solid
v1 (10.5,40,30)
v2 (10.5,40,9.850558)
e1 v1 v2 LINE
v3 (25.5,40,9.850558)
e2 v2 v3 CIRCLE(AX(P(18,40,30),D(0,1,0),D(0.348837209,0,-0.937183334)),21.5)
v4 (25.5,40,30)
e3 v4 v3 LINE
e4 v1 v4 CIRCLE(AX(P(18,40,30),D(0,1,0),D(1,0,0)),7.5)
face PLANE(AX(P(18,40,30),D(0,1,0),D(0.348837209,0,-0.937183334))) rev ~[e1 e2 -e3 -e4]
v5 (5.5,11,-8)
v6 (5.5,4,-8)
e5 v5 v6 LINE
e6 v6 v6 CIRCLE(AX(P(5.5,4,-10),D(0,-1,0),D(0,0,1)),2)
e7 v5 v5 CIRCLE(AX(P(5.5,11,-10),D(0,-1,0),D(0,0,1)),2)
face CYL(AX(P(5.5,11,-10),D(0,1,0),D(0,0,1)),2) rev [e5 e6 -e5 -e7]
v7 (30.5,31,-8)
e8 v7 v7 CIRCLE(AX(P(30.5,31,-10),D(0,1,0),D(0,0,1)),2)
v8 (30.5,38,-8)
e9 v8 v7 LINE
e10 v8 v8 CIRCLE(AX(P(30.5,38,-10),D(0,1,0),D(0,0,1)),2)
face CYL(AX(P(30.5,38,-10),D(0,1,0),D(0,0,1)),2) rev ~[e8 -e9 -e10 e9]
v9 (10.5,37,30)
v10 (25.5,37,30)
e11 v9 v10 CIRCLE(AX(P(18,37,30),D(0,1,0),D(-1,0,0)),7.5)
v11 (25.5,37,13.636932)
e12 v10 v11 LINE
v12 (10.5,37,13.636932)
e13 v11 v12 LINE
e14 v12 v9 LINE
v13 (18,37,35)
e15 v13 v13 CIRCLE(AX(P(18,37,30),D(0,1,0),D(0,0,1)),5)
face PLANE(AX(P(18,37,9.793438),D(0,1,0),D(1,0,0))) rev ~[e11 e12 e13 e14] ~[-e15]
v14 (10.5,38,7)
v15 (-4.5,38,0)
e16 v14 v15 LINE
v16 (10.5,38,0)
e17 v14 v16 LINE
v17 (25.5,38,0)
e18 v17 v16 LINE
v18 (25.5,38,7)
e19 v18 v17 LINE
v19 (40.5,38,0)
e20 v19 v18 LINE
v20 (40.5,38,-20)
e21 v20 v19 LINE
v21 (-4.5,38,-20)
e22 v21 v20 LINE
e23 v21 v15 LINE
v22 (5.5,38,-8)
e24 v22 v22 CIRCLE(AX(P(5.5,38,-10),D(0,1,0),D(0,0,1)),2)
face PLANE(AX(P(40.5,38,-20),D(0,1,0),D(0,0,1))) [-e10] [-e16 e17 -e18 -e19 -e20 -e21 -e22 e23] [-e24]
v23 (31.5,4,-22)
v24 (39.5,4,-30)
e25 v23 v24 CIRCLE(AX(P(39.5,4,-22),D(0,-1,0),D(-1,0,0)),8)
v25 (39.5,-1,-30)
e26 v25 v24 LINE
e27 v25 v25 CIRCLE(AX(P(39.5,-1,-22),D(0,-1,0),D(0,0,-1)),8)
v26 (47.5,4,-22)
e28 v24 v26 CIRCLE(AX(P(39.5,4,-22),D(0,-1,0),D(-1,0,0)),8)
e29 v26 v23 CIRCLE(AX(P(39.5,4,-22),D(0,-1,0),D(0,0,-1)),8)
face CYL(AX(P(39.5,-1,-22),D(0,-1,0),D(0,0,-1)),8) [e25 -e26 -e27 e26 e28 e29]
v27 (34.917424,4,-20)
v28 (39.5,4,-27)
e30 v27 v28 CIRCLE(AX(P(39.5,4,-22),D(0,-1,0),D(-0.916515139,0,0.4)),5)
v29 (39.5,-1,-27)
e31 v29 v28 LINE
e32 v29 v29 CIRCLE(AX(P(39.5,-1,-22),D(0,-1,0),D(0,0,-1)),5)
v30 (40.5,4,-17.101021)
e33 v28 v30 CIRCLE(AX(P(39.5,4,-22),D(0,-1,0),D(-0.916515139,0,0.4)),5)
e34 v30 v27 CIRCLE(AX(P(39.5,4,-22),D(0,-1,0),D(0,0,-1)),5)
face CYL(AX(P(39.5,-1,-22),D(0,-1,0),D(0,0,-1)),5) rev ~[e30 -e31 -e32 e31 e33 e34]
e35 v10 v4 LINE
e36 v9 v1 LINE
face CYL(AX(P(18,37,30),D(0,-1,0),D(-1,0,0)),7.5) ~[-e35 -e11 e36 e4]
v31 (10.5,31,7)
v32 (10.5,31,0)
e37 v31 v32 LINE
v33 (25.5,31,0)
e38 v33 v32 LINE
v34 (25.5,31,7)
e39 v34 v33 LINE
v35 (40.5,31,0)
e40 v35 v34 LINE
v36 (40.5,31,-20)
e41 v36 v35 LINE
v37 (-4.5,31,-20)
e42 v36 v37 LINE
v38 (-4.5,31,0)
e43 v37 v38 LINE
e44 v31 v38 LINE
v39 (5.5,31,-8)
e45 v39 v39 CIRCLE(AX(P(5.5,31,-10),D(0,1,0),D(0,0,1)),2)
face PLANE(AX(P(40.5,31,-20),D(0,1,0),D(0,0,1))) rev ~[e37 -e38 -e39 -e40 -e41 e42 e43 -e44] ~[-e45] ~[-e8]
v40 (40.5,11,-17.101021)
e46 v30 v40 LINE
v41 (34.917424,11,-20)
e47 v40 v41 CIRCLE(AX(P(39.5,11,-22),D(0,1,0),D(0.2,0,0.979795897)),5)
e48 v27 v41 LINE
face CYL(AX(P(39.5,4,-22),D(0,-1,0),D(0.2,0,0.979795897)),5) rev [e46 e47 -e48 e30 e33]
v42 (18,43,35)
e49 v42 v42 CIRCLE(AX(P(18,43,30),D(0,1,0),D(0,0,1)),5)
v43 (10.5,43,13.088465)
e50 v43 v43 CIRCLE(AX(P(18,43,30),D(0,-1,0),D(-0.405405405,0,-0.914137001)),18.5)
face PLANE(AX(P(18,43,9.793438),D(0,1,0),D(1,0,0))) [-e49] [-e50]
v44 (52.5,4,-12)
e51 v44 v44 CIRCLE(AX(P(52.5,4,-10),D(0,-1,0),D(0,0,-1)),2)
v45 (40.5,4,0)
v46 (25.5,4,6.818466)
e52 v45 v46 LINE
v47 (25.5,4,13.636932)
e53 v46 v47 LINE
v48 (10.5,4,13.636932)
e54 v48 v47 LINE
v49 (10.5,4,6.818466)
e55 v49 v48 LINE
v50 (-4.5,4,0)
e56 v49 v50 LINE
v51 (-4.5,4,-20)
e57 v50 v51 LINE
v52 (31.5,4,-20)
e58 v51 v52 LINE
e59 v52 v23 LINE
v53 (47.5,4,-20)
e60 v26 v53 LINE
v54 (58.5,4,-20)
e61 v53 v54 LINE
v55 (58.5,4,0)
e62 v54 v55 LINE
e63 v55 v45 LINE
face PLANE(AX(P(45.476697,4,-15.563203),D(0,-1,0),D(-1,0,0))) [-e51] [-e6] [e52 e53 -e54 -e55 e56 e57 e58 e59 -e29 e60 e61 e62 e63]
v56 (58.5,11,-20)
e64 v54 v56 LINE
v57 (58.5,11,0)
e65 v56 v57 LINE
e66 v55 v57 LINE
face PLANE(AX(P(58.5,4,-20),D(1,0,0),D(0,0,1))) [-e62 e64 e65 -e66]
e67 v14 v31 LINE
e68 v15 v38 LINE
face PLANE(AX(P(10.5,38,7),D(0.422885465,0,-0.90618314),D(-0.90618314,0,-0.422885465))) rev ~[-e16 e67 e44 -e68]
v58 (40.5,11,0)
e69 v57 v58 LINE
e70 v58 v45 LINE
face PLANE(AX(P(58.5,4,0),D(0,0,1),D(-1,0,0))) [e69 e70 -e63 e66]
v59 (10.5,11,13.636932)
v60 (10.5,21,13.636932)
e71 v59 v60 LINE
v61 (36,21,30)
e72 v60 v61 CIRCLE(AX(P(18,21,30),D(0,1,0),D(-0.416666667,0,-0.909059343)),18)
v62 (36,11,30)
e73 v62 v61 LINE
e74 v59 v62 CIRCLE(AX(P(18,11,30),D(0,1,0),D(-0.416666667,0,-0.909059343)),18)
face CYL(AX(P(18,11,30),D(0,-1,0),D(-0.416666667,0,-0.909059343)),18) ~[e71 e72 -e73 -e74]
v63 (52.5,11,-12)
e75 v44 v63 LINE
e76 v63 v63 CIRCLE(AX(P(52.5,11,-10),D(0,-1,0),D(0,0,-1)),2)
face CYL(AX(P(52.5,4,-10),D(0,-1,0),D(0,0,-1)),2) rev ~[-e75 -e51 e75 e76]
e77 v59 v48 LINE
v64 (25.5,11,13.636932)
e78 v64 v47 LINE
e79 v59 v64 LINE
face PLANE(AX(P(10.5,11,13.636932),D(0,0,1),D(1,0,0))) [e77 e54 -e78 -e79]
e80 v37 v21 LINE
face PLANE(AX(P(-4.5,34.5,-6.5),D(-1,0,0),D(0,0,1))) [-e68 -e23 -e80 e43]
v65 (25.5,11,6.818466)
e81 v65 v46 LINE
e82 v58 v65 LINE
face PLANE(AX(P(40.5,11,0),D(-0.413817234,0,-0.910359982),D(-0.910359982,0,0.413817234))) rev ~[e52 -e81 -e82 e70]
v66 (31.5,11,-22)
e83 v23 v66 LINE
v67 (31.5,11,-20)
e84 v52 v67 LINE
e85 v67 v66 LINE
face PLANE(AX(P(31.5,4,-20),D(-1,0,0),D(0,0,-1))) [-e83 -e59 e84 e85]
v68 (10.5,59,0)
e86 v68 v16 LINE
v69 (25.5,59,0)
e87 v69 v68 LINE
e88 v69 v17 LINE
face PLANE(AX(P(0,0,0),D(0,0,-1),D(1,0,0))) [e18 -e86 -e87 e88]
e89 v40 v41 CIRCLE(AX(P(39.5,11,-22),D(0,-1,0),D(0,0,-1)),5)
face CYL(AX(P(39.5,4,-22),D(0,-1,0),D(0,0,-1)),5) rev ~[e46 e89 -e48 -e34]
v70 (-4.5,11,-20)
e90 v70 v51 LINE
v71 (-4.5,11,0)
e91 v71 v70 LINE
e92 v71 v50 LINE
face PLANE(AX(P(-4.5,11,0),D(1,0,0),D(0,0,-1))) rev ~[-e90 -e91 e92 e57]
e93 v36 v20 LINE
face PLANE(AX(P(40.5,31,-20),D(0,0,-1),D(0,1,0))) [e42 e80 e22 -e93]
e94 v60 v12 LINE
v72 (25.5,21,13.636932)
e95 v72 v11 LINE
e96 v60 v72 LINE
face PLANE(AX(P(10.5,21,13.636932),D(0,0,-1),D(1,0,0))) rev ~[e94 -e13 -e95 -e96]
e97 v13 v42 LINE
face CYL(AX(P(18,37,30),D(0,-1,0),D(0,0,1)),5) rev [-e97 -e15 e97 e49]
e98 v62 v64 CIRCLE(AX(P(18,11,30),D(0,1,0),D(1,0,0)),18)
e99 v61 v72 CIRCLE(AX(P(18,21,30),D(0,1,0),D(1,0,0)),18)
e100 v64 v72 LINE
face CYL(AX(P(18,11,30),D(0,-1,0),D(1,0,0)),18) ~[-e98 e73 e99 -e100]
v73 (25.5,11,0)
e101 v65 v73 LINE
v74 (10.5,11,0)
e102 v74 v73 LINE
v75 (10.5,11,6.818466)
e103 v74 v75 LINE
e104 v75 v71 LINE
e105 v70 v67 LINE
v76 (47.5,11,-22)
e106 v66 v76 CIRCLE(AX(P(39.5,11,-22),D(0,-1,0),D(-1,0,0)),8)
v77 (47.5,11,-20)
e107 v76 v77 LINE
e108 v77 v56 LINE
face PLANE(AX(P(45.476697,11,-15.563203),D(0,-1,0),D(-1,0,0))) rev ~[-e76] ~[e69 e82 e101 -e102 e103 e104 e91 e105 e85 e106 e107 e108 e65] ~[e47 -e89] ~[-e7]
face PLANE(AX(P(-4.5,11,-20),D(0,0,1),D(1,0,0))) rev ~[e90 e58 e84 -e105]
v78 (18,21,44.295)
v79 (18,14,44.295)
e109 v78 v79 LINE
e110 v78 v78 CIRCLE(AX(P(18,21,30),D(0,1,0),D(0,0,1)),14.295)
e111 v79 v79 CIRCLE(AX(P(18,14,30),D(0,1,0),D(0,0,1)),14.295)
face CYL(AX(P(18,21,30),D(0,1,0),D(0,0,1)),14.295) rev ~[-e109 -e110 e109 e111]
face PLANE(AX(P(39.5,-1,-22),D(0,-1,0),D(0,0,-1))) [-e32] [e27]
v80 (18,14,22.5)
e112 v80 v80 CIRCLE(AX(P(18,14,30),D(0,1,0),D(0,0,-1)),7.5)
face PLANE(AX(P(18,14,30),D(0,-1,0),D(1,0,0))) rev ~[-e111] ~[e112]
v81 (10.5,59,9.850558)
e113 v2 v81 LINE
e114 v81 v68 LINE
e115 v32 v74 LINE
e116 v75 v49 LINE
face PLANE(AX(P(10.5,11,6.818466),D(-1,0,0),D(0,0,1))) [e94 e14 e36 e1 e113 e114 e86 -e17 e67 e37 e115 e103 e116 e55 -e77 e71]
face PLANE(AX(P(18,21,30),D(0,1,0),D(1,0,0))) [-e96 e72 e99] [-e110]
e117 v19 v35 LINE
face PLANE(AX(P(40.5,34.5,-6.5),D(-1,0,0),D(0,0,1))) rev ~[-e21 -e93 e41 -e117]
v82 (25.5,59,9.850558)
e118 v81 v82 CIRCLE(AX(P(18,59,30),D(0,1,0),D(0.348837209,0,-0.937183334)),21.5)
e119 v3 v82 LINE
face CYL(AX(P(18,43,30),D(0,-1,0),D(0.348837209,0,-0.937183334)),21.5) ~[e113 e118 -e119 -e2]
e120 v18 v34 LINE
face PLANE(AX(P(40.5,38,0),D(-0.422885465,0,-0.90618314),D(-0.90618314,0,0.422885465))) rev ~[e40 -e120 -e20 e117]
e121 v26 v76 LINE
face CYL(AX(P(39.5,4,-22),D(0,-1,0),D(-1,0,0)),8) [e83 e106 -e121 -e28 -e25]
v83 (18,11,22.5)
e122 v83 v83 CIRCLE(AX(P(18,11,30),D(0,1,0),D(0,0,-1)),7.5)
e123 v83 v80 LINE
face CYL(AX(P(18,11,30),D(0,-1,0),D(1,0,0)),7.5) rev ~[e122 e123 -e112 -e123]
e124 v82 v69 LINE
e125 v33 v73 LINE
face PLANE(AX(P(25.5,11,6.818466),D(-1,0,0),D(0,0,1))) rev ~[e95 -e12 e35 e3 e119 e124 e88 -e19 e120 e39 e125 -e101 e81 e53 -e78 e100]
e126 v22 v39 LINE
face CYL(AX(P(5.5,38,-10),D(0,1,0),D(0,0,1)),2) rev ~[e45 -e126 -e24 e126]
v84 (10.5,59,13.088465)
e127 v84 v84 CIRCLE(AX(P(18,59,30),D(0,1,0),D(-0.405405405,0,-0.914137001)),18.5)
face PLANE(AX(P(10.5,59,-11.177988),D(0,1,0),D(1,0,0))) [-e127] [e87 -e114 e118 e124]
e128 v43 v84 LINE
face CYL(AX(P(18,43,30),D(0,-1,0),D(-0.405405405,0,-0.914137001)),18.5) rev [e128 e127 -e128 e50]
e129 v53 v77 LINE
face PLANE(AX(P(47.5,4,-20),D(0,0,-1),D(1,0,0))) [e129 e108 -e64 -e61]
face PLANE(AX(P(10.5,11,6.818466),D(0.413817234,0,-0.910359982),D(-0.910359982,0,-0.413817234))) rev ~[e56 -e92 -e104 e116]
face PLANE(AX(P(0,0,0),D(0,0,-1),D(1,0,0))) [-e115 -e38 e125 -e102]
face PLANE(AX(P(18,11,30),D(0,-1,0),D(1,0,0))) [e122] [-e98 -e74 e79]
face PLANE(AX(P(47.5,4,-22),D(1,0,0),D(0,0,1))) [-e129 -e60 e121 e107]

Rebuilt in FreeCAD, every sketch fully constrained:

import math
import FreeCAD as App
import Part
import Sketcher
from FreeCAD import Vector
Q = App.Units.Quantity


def add_polygon(sketch, points):
    """Adds a closed chain of lines whose ends are joined by coincident constraints."""
    first, n = sketch.GeometryCount, len(points)
    for a, b in zip(points, points[1:] + points[:1]):
        sketch.addGeometry(Part.LineSegment(App.Vector(*a, 0), App.Vector(*b, 0)), False)
    for i in range(n):
        sketch.addConstraint(Sketcher.Constraint("Coincident", first + i, 2, first + (i + 1) % n, 1))

doc = App.newDocument("Part")
params = doc.addObject("Spreadsheet::Sheet", "Params")
for row, (alias, value) in enumerate([
    ("sketch1_width", "36 mm"),
    ("sketch1_height", "20 mm"),
    ("pad1_length", "5 mm"),
    ("sketch2_width", "15 mm"),
    ("pad2_length", "32 mm"),
    ("sketch3_diameter", "10 mm"),
    ("sketch3_radius", "7.5 mm"),
    ("pad3_length", "6 mm"),
    ("sketch4_diameter", "43 mm"),
    ("sketch4_diameter2", "37 mm"),
    ("pad4_length", "16 mm"),
    ("sketch5_diameter", "43 mm"),
    ("sketch5_diameter2", "15 mm"),
    ("pad5_length", "3 mm"),
    ("sketch6_width", "15 mm"),
    ("pad6_length", "16 mm"),
    ("sketch7_diameter", "4 mm"),
    ("pocket1_length", "16 mm"),
    ("sketch8_width", "15 mm"),
    ("sketch8_height", "10 mm"),
    ("pad7_length", "30 mm"),
    ("sketch9_diameter", "43 mm"),
    ("sketch9_diameter2", "30 mm"),
    ("pad8_length", "10 mm"),
    ("sketch10_diameter", "30 mm"),
    ("sketch10_diameter2", "15 mm"),
    ("pad9_length", "3 mm"),
    ("sketch11_diameter", "30 mm"),
    ("pocket2_length", "7 mm"),
    ("sketch12_diameter", "15 mm"),
    ("pocket3_length", "7 mm"),
    ("sketch13_diameter", "30 mm"),
    ("sketch13_diameter2", "28.59 mm"),
    ("pad10_length", "7 mm"),
    ("sketch14_radius", "18 mm"),
    ("sketch14_radius2", "21.5 mm"),
    ("pocket4_length", "10 mm"),
    ("sketch15_width", "15 mm"),
    ("sketch15_height", "16 mm"),
    ("pad11_length", "22 mm"),
    ("sketch16_width", "15 mm"),
    ("pad12_length", "22 mm"),
    ("sketch17_width", "36 mm"),
    ("sketch17_height", "20 mm"),
    ("sketch18_width", "15 mm"),
    ("sketch18_height", "7 mm"),
    ("pad13_length", "20 mm"),
    ("sketch19_width", "7 mm"),
    ("sketch19_height", "27 mm"),
    ("pad14_length", "15 mm"),
    ("pad14_length2", "30 mm"),
    ("sketch20_diameter", "4 mm"),
    ("sketch20_width", "15 mm"),
    ("sketch20_height", "7 mm"),
    ("sketch21_diameter", "4 mm"),
    ("sketch21_width", "45 mm"),
    ("sketch21_width2", "15 mm"),
    ("sketch21_height", "20 mm"),
    ("pad15_length", "7 mm"),
    ("sketch22_diameter", "4 mm"),
    ("sketch22_radius", "8 mm"),
    ("sketch22_radius2", "5 mm"),
    ("sketch22_width", "11 mm"),
    ("sketch22_width2", "18 mm"),
    ("pad16_length", "7 mm"),
    ("sketch23_diameter", "10 mm"),
    ("pocket7_length", "7 mm"),
    ("sketch24_diameter", "16 mm"),
    ("sketch24_diameter2", "10 mm"),
    ("pad17_length", "5 mm"),
], start=1):
    params.set(f"A{row}", alias)
    params.set(f"B{row}", "=" + value)
    params.setAlias(f"B{row}", alias)

body = doc.addObject("PartDesign::Body", "Body")

sketch1 = body.newObject("Sketcher::SketchObject", "Sketch")
sketch1.AttachmentSupport = (doc.getObject("XZ_Plane"), [""])
sketch1.MapMode = "FlatFace"
add_polygon(sketch1, [(0, -20), (0, 0), (36, 0), (36, -20)])
sketch1.addConstraint(Sketcher.Constraint("Vertical", 0))
sketch1.addConstraint(Sketcher.Constraint("Horizontal", 1))
sketch1.addConstraint(Sketcher.Constraint("Vertical", 2))
sketch1.addConstraint(Sketcher.Constraint("Horizontal", 3))
sketch1.addConstraint(Sketcher.Constraint("Coincident", 0, 2, -1, 1))
sketch1.addConstraint(Sketcher.Constraint("DistanceX", 1, 1, 1, 2, Q("36 mm")))
sketch1.addConstraint(Sketcher.Constraint("DistanceY", 0, 1, 0, 2, Q("20 mm")))
sketch1.setExpression("Constraints[9]", "Params.sketch1_width")
sketch1.setExpression("Constraints[10]", "Params.sketch1_height")
pad1 = body.newObject("PartDesign::Pad", "Pad")
pad1.Profile = sketch1
pad1.setExpression("Length", "Params.pad1_length")
pad1.Reversed = True

sketch2 = body.newObject("Sketcher::SketchObject", "Sketch001")
sketch2.AttachmentSupport = (doc.getObject("XZ_Plane"), [""])
sketch2.MapMode = "FlatFace"
sketch2.AttachmentOffset = App.Placement(Vector(0, 0, -5), App.Rotation())
add_polygon(sketch2, [(10.5, 0), (25.5, 0), (25.5, -14.591208), (10.5, -14.591208)])
sketch2.addConstraint(Sketcher.Constraint("Horizontal", 0))
sketch2.addConstraint(Sketcher.Constraint("Vertical", 1))
sketch2.addConstraint(Sketcher.Constraint("Horizontal", 2))
sketch2.addConstraint(Sketcher.Constraint("Vertical", 3))
sketch2.addConstraint(Sketcher.Constraint("PointOnObject", 0, 2, -1))
sketch2.addConstraint(Sketcher.Constraint("DistanceX", 0, 1, 0, 2, Q("15 mm")))
sketch2.addConstraint(Sketcher.Constraint("DistanceX", -1, 1, 0, 2, Q("25.5 mm")))
sketch2.addConstraint(Sketcher.Constraint("DistanceY", 1, 2, 1, 1, Q("14.591208 mm")))
sketch2.setExpression("Constraints[9]", "Params.sketch2_width")
pad2 = body.newObject("PartDesign::Pad", "Pad001")
pad2.Profile = sketch2
pad2.setExpression("Length", "Params.pad2_length")
pad2.Reversed = True

sketch3 = body.newObject("Sketcher::SketchObject", "Sketch002")
sketch3.AttachmentSupport = (doc.getObject("XZ_Plane"), [""])
sketch3.MapMode = "FlatFace"
sketch3.AttachmentOffset = App.Placement(Vector(0, 0, -37), App.Rotation())
sketch3.addGeometry(Part.LineSegment(Vector(10.5, -14.591208, 0), Vector(10.5, 30, 0)), False)
sketch3.addGeometry(Part.ArcOfCircle(Part.Circle(Vector(18, 30, 0), Vector(0, 0, 1), 7.5), math.radians(0), math.radians(180)), False)
sketch3.addGeometry(Part.LineSegment(Vector(25.5, 30, 0), Vector(25.5, -14.591208, 0)), False)
sketch3.addGeometry(Part.LineSegment(Vector(25.5, -14.591208, 0), Vector(10.5, -14.591208, 0)), False)
sketch3.addGeometry(Part.Circle(Vector(18, 30, 0), Vector(0, 0, 1), 5), False)
sketch3.addConstraint(Sketcher.Constraint("Tangent", 0, 2, 1, 2))
sketch3.addConstraint(Sketcher.Constraint("Tangent", 1, 1, 2, 1))
sketch3.addConstraint(Sketcher.Constraint("Coincident", 2, 2, 3, 1))
sketch3.addConstraint(Sketcher.Constraint("Coincident", 3, 2, 0, 1))
sketch3.addConstraint(Sketcher.Constraint("Vertical", 0))
sketch3.addConstraint(Sketcher.Constraint("Vertical", 2))
sketch3.addConstraint(Sketcher.Constraint("Horizontal", 3))
sketch3.addConstraint(Sketcher.Constraint("Coincident", 4, 3, 1, 3))
sketch3.addConstraint(Sketcher.Constraint("Diameter", 4, Q("10 mm")))
sketch3.addConstraint(Sketcher.Constraint("Radius", 1, Q("7.5 mm")))
sketch3.addConstraint(Sketcher.Constraint("DistanceX", -1, 1, 1, 3, Q("18 mm")))
sketch3.addConstraint(Sketcher.Constraint("DistanceY", -1, 1, 1, 3, Q("30 mm")))
sketch3.addConstraint(Sketcher.Constraint("DistanceY", 0, 1, 0, 2, Q("44.591208 mm")))
sketch3.setExpression("Constraints[8]", "Params.sketch3_diameter")
sketch3.setExpression("Constraints[9]", "Params.sketch3_radius")
pad3 = body.newObject("PartDesign::Pad", "Pad002")
pad3.Profile = sketch3
pad3.setExpression("Length", "Params.pad3_length")
pad3.Reversed = True

sketch4 = body.newObject("Sketcher::SketchObject", "Sketch003")
sketch4.AttachmentSupport = (doc.getObject("XZ_Plane"), [""])
sketch4.MapMode = "FlatFace"
sketch4.AttachmentOffset = App.Placement(Vector(0, 0, -43), App.Rotation())
sketch4.addGeometry(Part.Circle(Vector(18, 30, 0), Vector(0, 0, 1), 21.5), False)
sketch4.addGeometry(Part.Circle(Vector(18, 30, 0), Vector(0, 0, 1), 18.5), False)
sketch4.addConstraint(Sketcher.Constraint("Coincident", 1, 3, 0, 3))
sketch4.addConstraint(Sketcher.Constraint("Diameter", 0, Q("43 mm")))
sketch4.addConstraint(Sketcher.Constraint("Diameter", 1, Q("37 mm")))
sketch4.addConstraint(Sketcher.Constraint("DistanceX", -1, 1, 0, 3, Q("18 mm")))
sketch4.addConstraint(Sketcher.Constraint("DistanceY", -1, 1, 0, 3, Q("30 mm")))
sketch4.setExpression("Constraints[1]", "Params.sketch4_diameter")
sketch4.setExpression("Constraints[2]", "Params.sketch4_diameter2")
pad4 = body.newObject("PartDesign::Pad", "Pad003")
pad4.Profile = sketch4
pad4.setExpression("Length", "Params.pad4_length")
pad4.Reversed = True

sketch5 = body.newObject("Sketcher::SketchObject", "Sketch004")
sketch5.AttachmentSupport = (doc.getObject("XZ_Plane"), [""])
sketch5.MapMode = "FlatFace"
sketch5.AttachmentOffset = App.Placement(Vector(0, 0, -40), App.Rotation())
sketch5.addGeometry(Part.Circle(Vector(18, 30, 0), Vector(0, 0, 1), 21.5), False)
sketch5.addGeometry(Part.Circle(Vector(18, 30, 0), Vector(0, 0, 1), 7.5), False)
sketch5.addConstraint(Sketcher.Constraint("Coincident", 1, 3, 0, 3))
sketch5.addConstraint(Sketcher.Constraint("Diameter", 0, Q("43 mm")))
sketch5.addConstraint(Sketcher.Constraint("Diameter", 1, Q("15 mm")))
sketch5.addConstraint(Sketcher.Constraint("DistanceX", -1, 1, 0, 3, Q("18 mm")))
sketch5.addConstraint(Sketcher.Constraint("DistanceY", -1, 1, 0, 3, Q("30 mm")))
sketch5.setExpression("Constraints[1]", "Params.sketch5_diameter")
sketch5.setExpression("Constraints[2]", "Params.sketch5_diameter2")
pad5 = body.newObject("PartDesign::Pad", "Pad004")
pad5.Profile = sketch5
pad5.setExpression("Length", "Params.pad5_length")
pad5.Reversed = True

sketch6 = body.newObject("Sketcher::SketchObject", "Sketch005")
sketch6.AttachmentSupport = (doc.getObject("XZ_Plane"), [""])
sketch6.MapMode = "FlatFace"
sketch6.AttachmentOffset = App.Placement(Vector(0, 0, -43), App.Rotation())
add_polygon(sketch6, [(10.5, -14.591208), (10.5, -11.177988), (25.5, -11.177988), (25.5, -14.591208)])
sketch6.addConstraint(Sketcher.Constraint("Vertical", 0))
sketch6.addConstraint(Sketcher.Constraint("Horizontal", 1))
sketch6.addConstraint(Sketcher.Constraint("Vertical", 2))
sketch6.addConstraint(Sketcher.Constraint("Horizontal", 3))
sketch6.addConstraint(Sketcher.Constraint("DistanceX", 1, 1, 1, 2, Q("15 mm")))
sketch6.addConstraint(Sketcher.Constraint("DistanceX", -1, 1, 0, 2, Q("10.5 mm")))
sketch6.addConstraint(Sketcher.Constraint("DistanceY", 0, 1, 0, 2, Q("3.413221 mm")))
sketch6.addConstraint(Sketcher.Constraint("DistanceY", 2, 2, -1, 1, Q("14.591208 mm")))
sketch6.setExpression("Constraints[8]", "Params.sketch6_width")
pad6 = body.newObject("PartDesign::Pad", "Pad005")
pad6.Profile = sketch6
pad6.setExpression("Length", "Params.pad6_length")
pad6.Reversed = True

sketch7 = body.newObject("Sketcher::SketchObject", "Sketch006")
sketch7.AttachmentSupport = (doc.getObject("XZ_Plane"), [""])
sketch7.MapMode = "FlatFace"
sketch7.addGeometry(Part.Circle(Vector(6, -10, 0), Vector(0, 0, 1), 2), False)
sketch7.addGeometry(Part.Circle(Vector(30, -10, 0), Vector(0, 0, 1), 2), False)
sketch7.addConstraint(Sketcher.Constraint("Equal", 0, 1))
sketch7.addConstraint(Sketcher.Constraint("Horizontal", 0, 3, 1, 3))
sketch7.addConstraint(Sketcher.Constraint("Diameter", 0, Q("4 mm")))
sketch7.addConstraint(Sketcher.Constraint("DistanceX", -1, 1, 0, 3, Q("6 mm")))
sketch7.addConstraint(Sketcher.Constraint("DistanceY", 0, 3, -1, 1, Q("10 mm")))
sketch7.addConstraint(Sketcher.Constraint("DistanceX", -1, 1, 1, 3, Q("30 mm")))
sketch7.setExpression("Constraints[2]", "Params.sketch7_diameter")
pocket1 = body.newObject("PartDesign::Pocket", "Pocket")
pocket1.Profile = sketch7
pocket1.setExpression("Length", "Params.pocket1_length")

sketch8 = body.newObject("Sketcher::SketchObject", "Sketch007")
sketch8.AttachmentSupport = (doc.getObject("XY_Plane"), [""])
sketch8.MapMode = "FlatFace"
add_polygon(sketch8, [(10.5, 21), (10.5, 11), (25.5, 11), (25.5, 21)])
sketch8.addConstraint(Sketcher.Constraint("Vertical", 0))
sketch8.addConstraint(Sketcher.Constraint("Horizontal", 1))
sketch8.addConstraint(Sketcher.Constraint("Vertical", 2))
sketch8.addConstraint(Sketcher.Constraint("Horizontal", 3))
sketch8.addConstraint(Sketcher.Constraint("DistanceX", 1, 1, 1, 2, Q("15 mm")))
sketch8.addConstraint(Sketcher.Constraint("DistanceY", 0, 2, 0, 1, Q("10 mm")))
sketch8.addConstraint(Sketcher.Constraint("DistanceY", -1, 1, 0, 2, Q("11 mm")))
sketch8.addConstraint(Sketcher.Constraint("DistanceX", -1, 1, 0, 2, Q("10.5 mm")))
sketch8.setExpression("Constraints[8]", "Params.sketch8_width")
sketch8.setExpression("Constraints[9]", "Params.sketch8_height")
pad7 = body.newObject("PartDesign::Pad", "Pad006")
pad7.Profile = sketch8
pad7.setExpression("Length", "Params.pad7_length")

sketch9 = body.newObject("Sketcher::SketchObject", "Sketch008")
sketch9.AttachmentSupport = (doc.getObject("XZ_Plane"), [""])
sketch9.MapMode = "FlatFace"
sketch9.AttachmentOffset = App.Placement(Vector(0, 0, -21), App.Rotation())
sketch9.addGeometry(Part.Circle(Vector(18, 30, 0), Vector(0, 0, 1), 21.5), False)
sketch9.addGeometry(Part.Circle(Vector(18, 30, 0), Vector(0, 0, 1), 15), False)
sketch9.addConstraint(Sketcher.Constraint("Coincident", 1, 3, 0, 3))
sketch9.addConstraint(Sketcher.Constraint("Diameter", 0, Q("43 mm")))
sketch9.addConstraint(Sketcher.Constraint("Diameter", 1, Q("30 mm")))
sketch9.addConstraint(Sketcher.Constraint("DistanceX", -1, 1, 0, 3, Q("18 mm")))
sketch9.addConstraint(Sketcher.Constraint("DistanceY", -1, 1, 0, 3, Q("30 mm")))
sketch9.setExpression("Constraints[1]", "Params.sketch9_diameter")
sketch9.setExpression("Constraints[2]", "Params.sketch9_diameter2")
pad8 = body.newObject("PartDesign::Pad", "Pad007")
pad8.Profile = sketch9
pad8.setExpression("Length", "Params.pad8_length")

sketch10 = body.newObject("Sketcher::SketchObject", "Sketch009")
sketch10.AttachmentSupport = (doc.getObject("XZ_Plane"), [""])
sketch10.MapMode = "FlatFace"
sketch10.AttachmentOffset = App.Placement(Vector(0, 0, -11), App.Rotation())
sketch10.addGeometry(Part.Circle(Vector(18, 30, 0), Vector(0, 0, 1), 15), False)
sketch10.addGeometry(Part.Circle(Vector(18, 30, 0), Vector(0, 0, 1), 7.5), False)
sketch10.addConstraint(Sketcher.Constraint("Coincident", 1, 3, 0, 3))
sketch10.addConstraint(Sketcher.Constraint("Diameter", 0, Q("30 mm")))
sketch10.addConstraint(Sketcher.Constraint("Diameter", 1, Q("15 mm")))
sketch10.addConstraint(Sketcher.Constraint("DistanceX", -1, 1, 0, 3, Q("18 mm")))
sketch10.addConstraint(Sketcher.Constraint("DistanceY", -1, 1, 0, 3, Q("30 mm")))
sketch10.setExpression("Constraints[1]", "Params.sketch10_diameter")
sketch10.setExpression("Constraints[2]", "Params.sketch10_diameter2")
pad9 = body.newObject("PartDesign::Pad", "Pad008")
pad9.Profile = sketch10
pad9.setExpression("Length", "Params.pad9_length")
pad9.Reversed = True

sketch11 = body.newObject("Sketcher::SketchObject", "Sketch010")
sketch11.AttachmentSupport = (doc.getObject("XZ_Plane"), [""])
sketch11.MapMode = "FlatFace"
sketch11.AttachmentOffset = App.Placement(Vector(0, 0, -21), App.Rotation())
sketch11.addGeometry(Part.Circle(Vector(18, 30, 0), Vector(0, 0, 1), 15), False)
sketch11.addConstraint(Sketcher.Constraint("Diameter", 0, Q("30 mm")))
sketch11.addConstraint(Sketcher.Constraint("DistanceX", -1, 1, 0, 3, Q("18 mm")))
sketch11.addConstraint(Sketcher.Constraint("DistanceY", -1, 1, 0, 3, Q("30 mm")))
sketch11.setExpression("Constraints[0]", "Params.sketch11_diameter")
pocket2 = body.newObject("PartDesign::Pocket", "Pocket001")
pocket2.Profile = sketch11
pocket2.setExpression("Length", "Params.pocket2_length")
pocket2.Reversed = True

sketch12 = body.newObject("Sketcher::SketchObject", "Sketch011")
sketch12.AttachmentSupport = (doc.getObject("XZ_Plane"), [""])
sketch12.MapMode = "FlatFace"
sketch12.AttachmentOffset = App.Placement(Vector(0, 0, -11), App.Rotation())
sketch12.addGeometry(Part.Circle(Vector(18, 30, 0), Vector(0, 0, 1), 7.5), False)
sketch12.addConstraint(Sketcher.Constraint("Diameter", 0, Q("15 mm")))
sketch12.addConstraint(Sketcher.Constraint("DistanceX", -1, 1, 0, 3, Q("18 mm")))
sketch12.addConstraint(Sketcher.Constraint("DistanceY", -1, 1, 0, 3, Q("30 mm")))
sketch12.setExpression("Constraints[0]", "Params.sketch12_diameter")
pocket3 = body.newObject("PartDesign::Pocket", "Pocket002")
pocket3.Profile = sketch12
pocket3.setExpression("Length", "Params.pocket3_length")

sketch13 = body.newObject("Sketcher::SketchObject", "Sketch012")
sketch13.AttachmentSupport = (doc.getObject("XZ_Plane"), [""])
sketch13.MapMode = "FlatFace"
sketch13.AttachmentOffset = App.Placement(Vector(0, 0, -21), App.Rotation())
sketch13.addGeometry(Part.Circle(Vector(18, 30, 0), Vector(0, 0, 1), 15), False)
sketch13.addGeometry(Part.Circle(Vector(18, 30, 0), Vector(0, 0, 1), 14.295), False)
sketch13.addConstraint(Sketcher.Constraint("Coincident", 1, 3, 0, 3))
sketch13.addConstraint(Sketcher.Constraint("Diameter", 0, Q("30 mm")))
sketch13.addConstraint(Sketcher.Constraint("Diameter", 1, Q("28.59 mm")))
sketch13.addConstraint(Sketcher.Constraint("DistanceX", -1, 1, 0, 3, Q("18 mm")))
sketch13.addConstraint(Sketcher.Constraint("DistanceY", -1, 1, 0, 3, Q("30 mm")))
sketch13.setExpression("Constraints[1]", "Params.sketch13_diameter")
sketch13.setExpression("Constraints[2]", "Params.sketch13_diameter2")
pad10 = body.newObject("PartDesign::Pad", "Pad009")
pad10.Profile = sketch13
pad10.setExpression("Length", "Params.pad10_length")

sketch14 = body.newObject("Sketcher::SketchObject", "Sketch013")
sketch14.AttachmentSupport = (doc.getObject("XZ_Plane"), [""])
sketch14.MapMode = "FlatFace"
sketch14.AttachmentOffset = App.Placement(Vector(0, 0, -11), App.Rotation())
sketch14.addGeometry(Part.ArcOfCircle(Part.Circle(Vector(18, 30, 0), Vector(0, 0, 1), 21.5), math.radians(0), math.radians(249.58379)), False)
sketch14.addGeometry(Part.LineSegment(Vector(10.5, 9.850558, 0), Vector(10.5, 13.636932, 0)), False)
sketch14.addGeometry(Part.ArcOfCircle(Part.Circle(Vector(18, 30, 0), Vector(0, 0, 1), 18), math.radians(0), math.radians(245.375682)), False)
sketch14.addGeometry(Part.ArcOfCircle(Part.Circle(Vector(18, 30, 0), Vector(0, 0, 1), 18), math.radians(-65.375682), math.radians(0)), False)
sketch14.addGeometry(Part.LineSegment(Vector(25.5, 13.636932, 0), Vector(25.5, 9.850558, 0)), False)
sketch14.addGeometry(Part.ArcOfCircle(Part.Circle(Vector(18, 30, 0), Vector(0, 0, 1), 21.5), math.radians(-69.58379), math.radians(0)), False)
sketch14.addConstraint(Sketcher.Constraint("Coincident", 0, 2, 1, 1))
sketch14.addConstraint(Sketcher.Constraint("Coincident", 1, 2, 2, 2))
sketch14.addConstraint(Sketcher.Constraint("Tangent", 2, 1, 3, 2))
sketch14.addConstraint(Sketcher.Constraint("Coincident", 3, 1, 4, 1))
sketch14.addConstraint(Sketcher.Constraint("Coincident", 4, 2, 5, 1))
sketch14.addConstraint(Sketcher.Constraint("Tangent", 5, 2, 0, 1))
sketch14.addConstraint(Sketcher.Constraint("Vertical", 1))
sketch14.addConstraint(Sketcher.Constraint("Vertical", 4))
sketch14.addConstraint(Sketcher.Constraint("Coincident", 2, 3, 0, 3))
sketch14.addConstraint(Sketcher.Constraint("Equal", 2, 3))
sketch14.addConstraint(Sketcher.Constraint("Equal", 0, 5))
sketch14.addConstraint(Sketcher.Constraint("Horizontal", 5, 3, 2, 1))
sketch14.addConstraint(Sketcher.Constraint("Horizontal", 1, 2, 3, 1))
sketch14.addConstraint(Sketcher.Constraint("Horizontal", 2, 1, 5, 2))
sketch14.addConstraint(Sketcher.Constraint("Radius", 2, Q("18 mm")))
sketch14.addConstraint(Sketcher.Constraint("Radius", 0, Q("21.5 mm")))
sketch14.addConstraint(Sketcher.Constraint("DistanceX", -1, 1, 0, 3, Q("18 mm")))
sketch14.addConstraint(Sketcher.Constraint("DistanceY", -1, 1, 0, 3, Q("30 mm")))
sketch14.addConstraint(Sketcher.Constraint("DistanceX", 1, 2, 3, 1, Q("15 mm")))
sketch14.setExpression("Constraints[14]", "Params.sketch14_radius")
sketch14.setExpression("Constraints[15]", "Params.sketch14_radius2")
pocket4 = body.newObject("PartDesign::Pocket", "Pocket003")
pocket4.Profile = sketch14
pocket4.setExpression("Length", "Params.pocket4_length")

sketch15 = body.newObject("Sketcher::SketchObject", "Sketch014")
sketch15.AttachmentSupport = (doc.getObject("XY_Plane"), [""])
sketch15.MapMode = "FlatFace"
sketch15.AttachmentOffset = App.Placement(Vector(0, 0, -11.177988), App.Rotation())
add_polygon(sketch15, [(10.5, 59), (10.5, 43), (25.5, 43), (25.5, 59)])
sketch15.addConstraint(Sketcher.Constraint("Vertical", 0))
sketch15.addConstraint(Sketcher.Constraint("Horizontal", 1))
sketch15.addConstraint(Sketcher.Constraint("Vertical", 2))
sketch15.addConstraint(Sketcher.Constraint("Horizontal", 3))
sketch15.addConstraint(Sketcher.Constraint("DistanceX", 1, 1, 1, 2, Q("15 mm")))
sketch15.addConstraint(Sketcher.Constraint("DistanceY", 0, 2, 0, 1, Q("16 mm")))
sketch15.addConstraint(Sketcher.Constraint("DistanceY", -1, 1, 0, 2, Q("43 mm")))
sketch15.addConstraint(Sketcher.Constraint("DistanceX", -1, 1, 0, 2, Q("10.5 mm")))
sketch15.setExpression("Constraints[8]", "Params.sketch15_width")
sketch15.setExpression("Constraints[9]", "Params.sketch15_height")
pad11 = body.newObject("PartDesign::Pad", "Pad010")
pad11.Profile = sketch15
pad11.setExpression("Length", "Params.pad11_length")

sketch16 = body.newObject("Sketcher::SketchObject", "Sketch015")
sketch16.AttachmentSupport = (doc.getObject("XZ_Plane"), [""])
sketch16.MapMode = "FlatFace"
sketch16.AttachmentOffset = App.Placement(Vector(0, 0, -21), App.Rotation())
add_polygon(sketch16, [(10.5, 0), (10.5, 13.636932), (25.5, 13.636932), (25.5, 0)])
sketch16.addConstraint(Sketcher.Constraint("Vertical", 0))
sketch16.addConstraint(Sketcher.Constraint("Horizontal", 1))
sketch16.addConstraint(Sketcher.Constraint("Vertical", 2))
sketch16.addConstraint(Sketcher.Constraint("Horizontal", 3))
sketch16.addConstraint(Sketcher.Constraint("PointOnObject", 2, 2, -1))
sketch16.addConstraint(Sketcher.Constraint("DistanceX", 1, 1, 1, 2, Q("15 mm")))
sketch16.addConstraint(Sketcher.Constraint("DistanceX", -1, 1, 0, 2, Q("10.5 mm")))
sketch16.addConstraint(Sketcher.Constraint("DistanceY", 0, 1, 0, 2, Q("13.636932 mm")))
sketch16.setExpression("Constraints[9]", "Params.sketch16_width")
pad12 = body.newObject("PartDesign::Pad", "Pad011")
pad12.Profile = sketch16
pad12.setExpression("Length", "Params.pad12_length")
pad12.Reversed = True

sketch17 = body.newObject("Sketcher::SketchObject", "Sketch016")
sketch17.AttachmentSupport = (doc.getObject("XZ_Plane"), [""])
sketch17.MapMode = "FlatFace"
add_polygon(sketch17, [(0, 0), (0, -20), (36, -20), (36, 0)])
sketch17.addConstraint(Sketcher.Constraint("Vertical", 0))
sketch17.addConstraint(Sketcher.Constraint("Horizontal", 1))
sketch17.addConstraint(Sketcher.Constraint("Vertical", 2))
sketch17.addConstraint(Sketcher.Constraint("Horizontal", 3))
sketch17.addConstraint(Sketcher.Constraint("Coincident", 3, 2, -1, 1))
sketch17.addConstraint(Sketcher.Constraint("DistanceX", 1, 1, 1, 2, Q("36 mm")))
sketch17.addConstraint(Sketcher.Constraint("DistanceY", 0, 2, 0, 1, Q("20 mm")))
sketch17.setExpression("Constraints[9]", "Params.sketch17_width")
sketch17.setExpression("Constraints[10]", "Params.sketch17_height")
pocket5 = body.newObject("PartDesign::Pocket", "Pocket004")
pocket5.Profile = sketch17
pocket5.Type = "ThroughAll"

sketch18 = body.newObject("Sketcher::SketchObject", "Sketch017")
sketch18.AttachmentSupport = (doc.getObject("XY_Plane"), [""])
sketch18.MapMode = "FlatFace"
add_polygon(sketch18, [(25.5, 38), (25.5, 31), (10.5, 31), (10.5, 38)])
sketch18.addConstraint(Sketcher.Constraint("Vertical", 0))
sketch18.addConstraint(Sketcher.Constraint("Horizontal", 1))
sketch18.addConstraint(Sketcher.Constraint("Vertical", 2))
sketch18.addConstraint(Sketcher.Constraint("Horizontal", 3))
sketch18.addConstraint(Sketcher.Constraint("DistanceX", 1, 2, 1, 1, Q("15 mm")))
sketch18.addConstraint(Sketcher.Constraint("DistanceY", 0, 2, 0, 1, Q("7 mm")))
sketch18.addConstraint(Sketcher.Constraint("DistanceY", -1, 1, 0, 2, Q("31 mm")))
sketch18.addConstraint(Sketcher.Constraint("DistanceX", -1, 1, 0, 2, Q("25.5 mm")))
sketch18.setExpression("Constraints[8]", "Params.sketch18_width")
sketch18.setExpression("Constraints[9]", "Params.sketch18_height")
pad13 = body.newObject("PartDesign::Pad", "Pad012")
pad13.Profile = sketch18
pad13.setExpression("Length", "Params.pad13_length")
pad13.Reversed = True

sketch19 = body.newObject("Sketcher::SketchObject", "Sketch018")
sketch19.AttachmentSupport = (doc.getObject("YZ_Plane"), [""])
sketch19.MapMode = "FlatFace"
sketch19.AttachmentOffset = App.Placement(Vector(0, 0, 10.5), App.Rotation())
add_polygon(sketch19, [(38, -20), (31, -20), (31, 7), (38, 7)])
sketch19.addConstraint(Sketcher.Constraint("Horizontal", 0))
sketch19.addConstraint(Sketcher.Constraint("Vertical", 1))
sketch19.addConstraint(Sketcher.Constraint("Horizontal", 2))
sketch19.addConstraint(Sketcher.Constraint("Vertical", 3))
sketch19.addConstraint(Sketcher.Constraint("DistanceX", 0, 2, 0, 1, Q("7 mm")))
sketch19.addConstraint(Sketcher.Constraint("DistanceY", 1, 1, 1, 2, Q("27 mm")))
sketch19.addConstraint(Sketcher.Constraint("DistanceX", -1, 1, 0, 2, Q("31 mm")))
sketch19.addConstraint(Sketcher.Constraint("DistanceY", 0, 2, -1, 1, Q("20 mm")))
sketch19.setExpression("Constraints[8]", "Params.sketch19_width")
sketch19.setExpression("Constraints[9]", "Params.sketch19_height")
pad14 = body.newObject("PartDesign::Pad", "Pad013")
pad14.Profile = sketch19
pad14.Type = "TwoLengths"
pad14.setExpression("Length", "Params.pad14_length")
pad14.setExpression("Length2", "Params.pad14_length2")
pad14.Reversed = True

sketch20 = body.newObject("Sketcher::SketchObject", "Sketch019")
sketch20.AttachmentSupport = (doc.getObject("XZ_Plane"), [""])
sketch20.MapMode = "FlatFace"
sketch20.AttachmentOffset = App.Placement(Vector(0, 0, -38), App.Rotation())
sketch20.addGeometry(Part.Circle(Vector(30.5, -10, 0), Vector(0, 0, 1), 2), False)
sketch20.addGeometry(Part.Circle(Vector(5.5, -10, 0), Vector(0, 0, 1), 2), False)
add_polygon(sketch20, [(-4.5, 7), (10.5, 7), (-4.5, 0)])
add_polygon(sketch20, [(40.5, 7), (40.5, 0), (25.5, 7)])
sketch20.addConstraint(Sketcher.Constraint("Horizontal", 2))
sketch20.addConstraint(Sketcher.Constraint("Vertical", 4))
sketch20.addConstraint(Sketcher.Constraint("Vertical", 5))
sketch20.addConstraint(Sketcher.Constraint("Horizontal", 7))
sketch20.addConstraint(Sketcher.Constraint("Equal", 0, 1))
sketch20.addConstraint(Sketcher.Constraint("PointOnObject", 3, 2, -1))
sketch20.addConstraint(Sketcher.Constraint("PointOnObject", 5, 2, -1))
sketch20.addConstraint(Sketcher.Constraint("Horizontal", 0, 3, 1, 3))
sketch20.addConstraint(Sketcher.Constraint("Horizontal", 4, 2, 6, 2))
sketch20.addConstraint(Sketcher.Constraint("Equal", 2, 7))
sketch20.addConstraint(Sketcher.Constraint("Diameter", 0, Q("4 mm")))
sketch20.addConstraint(Sketcher.Constraint("DistanceX", 2, 1, 2, 2, Q("15 mm")))
sketch20.addConstraint(Sketcher.Constraint("DistanceY", 4, 1, 4, 2, Q("7 mm")))
sketch20.addConstraint(Sketcher.Constraint("DistanceY", 0, 3, -1, 1, Q("10 mm")))
sketch20.addConstraint(Sketcher.Constraint("DistanceX", 1, 3, 0, 3, Q("25 mm")))
sketch20.addConstraint(Sketcher.Constraint("DistanceX", 1, 3, 2, 2, Q("5 mm")))
sketch20.addConstraint(Sketcher.Constraint("DistanceX", 0, 3, 5, 2, Q("10 mm")))
sketch20.addConstraint(Sketcher.Constraint("DistanceX", -1, 1, 0, 3, Q("30.5 mm")))
sketch20.setExpression("Constraints[16]", "Params.sketch20_diameter")
sketch20.setExpression("Constraints[17]", "Params.sketch20_width")
sketch20.setExpression("Constraints[18]", "Params.sketch20_height")
pocket6 = body.newObject("PartDesign::Pocket", "Pocket005")
pocket6.Profile = sketch20
pocket6.Type = "ThroughAll"
pocket6.Reversed = True

sketch21 = body.newObject("Sketcher::SketchObject", "Sketch020")
sketch21.AttachmentSupport = (doc.getObject("XZ_Plane"), [""])
sketch21.MapMode = "FlatFace"
sketch21.AttachmentOffset = App.Placement(Vector(0, 0, -11), App.Rotation())
add_polygon(sketch21, [(10.5, 6.818466), (-4.5, 0), (-4.5, -20), (40.5, -20), (40.5, 0), (25.5, 6.818466), (25.5, 13.636932), (10.5, 13.636932)])
sketch21.addGeometry(Part.Circle(Vector(5.5, -10, 0), Vector(0, 0, 1), 2), False)
sketch21.addConstraint(Sketcher.Constraint("Vertical", 1))
sketch21.addConstraint(Sketcher.Constraint("Horizontal", 2))
sketch21.addConstraint(Sketcher.Constraint("Vertical", 3))
sketch21.addConstraint(Sketcher.Constraint("Vertical", 5))
sketch21.addConstraint(Sketcher.Constraint("Horizontal", 6))
sketch21.addConstraint(Sketcher.Constraint("Vertical", 7))
sketch21.addConstraint(Sketcher.Constraint("PointOnObject", 0, 2, -1))
sketch21.addConstraint(Sketcher.Constraint("PointOnObject", 3, 2, -1))
sketch21.addConstraint(Sketcher.Constraint("Horizontal", 4, 2, 7, 2))
sketch21.addConstraint(Sketcher.Constraint("Equal", 0, 4))
sketch21.addConstraint(Sketcher.Constraint("Diameter", 8, Q("4 mm")))
sketch21.addConstraint(Sketcher.Constraint("DistanceX", 2, 1, 2, 2, Q("45 mm")))
sketch21.addConstraint(Sketcher.Constraint("DistanceX", 6, 2, 6, 1, Q("15 mm")))
sketch21.addConstraint(Sketcher.Constraint("DistanceY", 1, 2, 1, 1, Q("20 mm")))
sketch21.addConstraint(Sketcher.Constraint("DistanceY", 8, 3, -1, 1, Q("10 mm")))
sketch21.addConstraint(Sketcher.Constraint("DistanceX", 0, 2, 8, 3, Q("10 mm")))
sketch21.addConstraint(Sketcher.Constraint("DistanceX", -1, 1, 8, 3, Q("5.5 mm")))
sketch21.addConstraint(Sketcher.Constraint("Distance", 0, Q("16.476998 mm")))
sketch21.addConstraint(Sketcher.Constraint("DistanceY", 5, 1, 5, 2, Q("6.818466 mm")))
sketch21.setExpression("Constraints[18]", "Params.sketch21_diameter")
sketch21.setExpression("Constraints[19]", "Params.sketch21_width")
sketch21.setExpression("Constraints[20]", "Params.sketch21_width2")
sketch21.setExpression("Constraints[21]", "Params.sketch21_height")
pad15 = body.newObject("PartDesign::Pad", "Pad014")
pad15.Profile = sketch21
pad15.setExpression("Length", "Params.pad15_length")

sketch22 = body.newObject("Sketcher::SketchObject", "Sketch021")
sketch22.AttachmentSupport = (doc.getObject("XZ_Plane"), [""])
sketch22.MapMode = "FlatFace"
sketch22.AttachmentOffset = App.Placement(Vector(0, 0, -4), App.Rotation())
sketch22.addGeometry(Part.LineSegment(Vector(34.917424, -20, 0), Vector(31.5, -20, 0)), False)
sketch22.addGeometry(Part.LineSegment(Vector(31.5, -20, 0), Vector(31.5, -22, 0)), False)
sketch22.addGeometry(Part.ArcOfCircle(Part.Circle(Vector(39.5, -22, 0), Vector(0, 0, 1), 8), math.radians(180), math.radians(360)), False)
sketch22.addGeometry(Part.LineSegment(Vector(47.5, -22, 0), Vector(47.5, -20, 0)), False)
sketch22.addGeometry(Part.LineSegment(Vector(47.5, -20, 0), Vector(58.5, -20, 0)), False)
sketch22.addGeometry(Part.LineSegment(Vector(58.5, -20, 0), Vector(58.5, 0, 0)), False)
sketch22.addGeometry(Part.LineSegment(Vector(58.5, 0, 0), Vector(40.5, 0, 0)), False)
sketch22.addGeometry(Part.LineSegment(Vector(40.5, 0, 0), Vector(40.5, -17.101021, 0)), False)
sketch22.addGeometry(Part.ArcOfCircle(Part.Circle(Vector(39.5, -22, 0), Vector(0, 0, 1), 5), math.radians(156.421822), math.radians(438.463041)), False)
sketch22.addGeometry(Part.Circle(Vector(52.5, -10, 0), Vector(0, 0, 1), 2), False)
sketch22.addConstraint(Sketcher.Constraint("Coincident", 0, 2, 1, 1))
sketch22.addConstraint(Sketcher.Constraint("Tangent", 1, 2, 2, 1))
sketch22.addConstraint(Sketcher.Constraint("Tangent", 2, 2, 3, 1))
sketch22.addConstraint(Sketcher.Constraint("Coincident", 3, 2, 4, 1))
sketch22.addConstraint(Sketcher.Constraint("Coincident", 4, 2, 5, 1))
sketch22.addConstraint(Sketcher.Constraint("Coincident", 5, 2, 6, 1))
sketch22.addConstraint(Sketcher.Constraint("Coincident", 6, 2, 7, 1))
sketch22.addConstraint(Sketcher.Constraint("Coincident", 7, 2, 8, 2))
sketch22.addConstraint(Sketcher.Constraint("Coincident", 8, 1, 0, 1))
sketch22.addConstraint(Sketcher.Constraint("Horizontal", 0))
sketch22.addConstraint(Sketcher.Constraint("Vertical", 1))
sketch22.addConstraint(Sketcher.Constraint("Vertical", 3))
sketch22.addConstraint(Sketcher.Constraint("Horizontal", 4))
sketch22.addConstraint(Sketcher.Constraint("Vertical", 5))
sketch22.addConstraint(Sketcher.Constraint("Horizontal", 6))
sketch22.addConstraint(Sketcher.Constraint("Vertical", 7))
sketch22.addConstraint(Sketcher.Constraint("Coincident", 8, 3, 2, 3))
sketch22.addConstraint(Sketcher.Constraint("PointOnObject", 5, 2, -1))
sketch22.addConstraint(Sketcher.Constraint("Horizontal", 0, 2, 3, 2))
sketch22.addConstraint(Sketcher.Constraint("Diameter", 9, Q("4 mm")))
sketch22.addConstraint(Sketcher.Constraint("Radius", 2, Q("8 mm")))
sketch22.addConstraint(Sketcher.Constraint("Radius", 8, Q("5 mm")))
sketch22.addConstraint(Sketcher.Constraint("DistanceX", 4, 1, 4, 2, Q("11 mm")))
sketch22.addConstraint(Sketcher.Constraint("DistanceX", 6, 2, 6, 1, Q("18 mm")))
sketch22.addConstraint(Sketcher.Constraint("DistanceY", 1, 2, 1, 1, Q("2 mm")))
sketch22.addConstraint(Sketcher.Constraint("DistanceY", 5, 1, 5, 2, Q("20 mm")))
sketch22.addConstraint(Sketcher.Constraint("DistanceY", 9, 3, -1, 1, Q("10 mm")))
sketch22.addConstraint(Sketcher.Constraint("DistanceX", 8, 3, 9, 3, Q("13 mm")))
sketch22.addConstraint(Sketcher.Constraint("DistanceX", -1, 1, 2, 3, Q("39.5 mm")))
sketch22.setExpression("Constraints[19]", "Params.sketch22_diameter")
sketch22.setExpression("Constraints[20]", "Params.sketch22_radius")
sketch22.setExpression("Constraints[21]", "Params.sketch22_radius2")
sketch22.setExpression("Constraints[22]", "Params.sketch22_width")
sketch22.setExpression("Constraints[23]", "Params.sketch22_width2")
pad16 = body.newObject("PartDesign::Pad", "Pad015")
pad16.Profile = sketch22
pad16.setExpression("Length", "Params.pad16_length")
pad16.Reversed = True

sketch23 = body.newObject("Sketcher::SketchObject", "Sketch022")
sketch23.AttachmentSupport = (doc.getObject("XZ_Plane"), [""])
sketch23.MapMode = "FlatFace"
sketch23.AttachmentOffset = App.Placement(Vector(0, 0, -4), App.Rotation())
sketch23.addGeometry(Part.Circle(Vector(39.5, -22, 0), Vector(0, 0, 1), 5), False)
sketch23.addConstraint(Sketcher.Constraint("Diameter", 0, Q("10 mm")))
sketch23.addConstraint(Sketcher.Constraint("DistanceY", 0, 3, -1, 1, Q("22 mm")))
sketch23.addConstraint(Sketcher.Constraint("DistanceX", -1, 1, 0, 3, Q("39.5 mm")))
sketch23.setExpression("Constraints[0]", "Params.sketch23_diameter")
pocket7 = body.newObject("PartDesign::Pocket", "Pocket006")
pocket7.Profile = sketch23
pocket7.setExpression("Length", "Params.pocket7_length")

sketch24 = body.newObject("Sketcher::SketchObject", "Sketch023")
sketch24.AttachmentSupport = (doc.getObject("XZ_Plane"), [""])
sketch24.MapMode = "FlatFace"
sketch24.AttachmentOffset = App.Placement(Vector(0, 0, 1), App.Rotation())
sketch24.addGeometry(Part.Circle(Vector(39.5, -22, 0), Vector(0, 0, 1), 8), False)
sketch24.addGeometry(Part.Circle(Vector(39.5, -22, 0), Vector(0, 0, 1), 5), False)
sketch24.addConstraint(Sketcher.Constraint("Coincident", 1, 3, 0, 3))
sketch24.addConstraint(Sketcher.Constraint("Diameter", 0, Q("16 mm")))
sketch24.addConstraint(Sketcher.Constraint("Diameter", 1, Q("10 mm")))
sketch24.addConstraint(Sketcher.Constraint("DistanceY", 0, 3, -1, 1, Q("22 mm")))
sketch24.addConstraint(Sketcher.Constraint("DistanceX", -1, 1, 0, 3, Q("39.5 mm")))
sketch24.setExpression("Constraints[1]", "Params.sketch24_diameter")
sketch24.setExpression("Constraints[2]", "Params.sketch24_diameter2")
pad17 = body.newObject("PartDesign::Pad", "Pad016")
pad17.Profile = sketch24
pad17.setExpression("Length", "Params.pad17_length")
pad17.Reversed = True

doc.recompute()
